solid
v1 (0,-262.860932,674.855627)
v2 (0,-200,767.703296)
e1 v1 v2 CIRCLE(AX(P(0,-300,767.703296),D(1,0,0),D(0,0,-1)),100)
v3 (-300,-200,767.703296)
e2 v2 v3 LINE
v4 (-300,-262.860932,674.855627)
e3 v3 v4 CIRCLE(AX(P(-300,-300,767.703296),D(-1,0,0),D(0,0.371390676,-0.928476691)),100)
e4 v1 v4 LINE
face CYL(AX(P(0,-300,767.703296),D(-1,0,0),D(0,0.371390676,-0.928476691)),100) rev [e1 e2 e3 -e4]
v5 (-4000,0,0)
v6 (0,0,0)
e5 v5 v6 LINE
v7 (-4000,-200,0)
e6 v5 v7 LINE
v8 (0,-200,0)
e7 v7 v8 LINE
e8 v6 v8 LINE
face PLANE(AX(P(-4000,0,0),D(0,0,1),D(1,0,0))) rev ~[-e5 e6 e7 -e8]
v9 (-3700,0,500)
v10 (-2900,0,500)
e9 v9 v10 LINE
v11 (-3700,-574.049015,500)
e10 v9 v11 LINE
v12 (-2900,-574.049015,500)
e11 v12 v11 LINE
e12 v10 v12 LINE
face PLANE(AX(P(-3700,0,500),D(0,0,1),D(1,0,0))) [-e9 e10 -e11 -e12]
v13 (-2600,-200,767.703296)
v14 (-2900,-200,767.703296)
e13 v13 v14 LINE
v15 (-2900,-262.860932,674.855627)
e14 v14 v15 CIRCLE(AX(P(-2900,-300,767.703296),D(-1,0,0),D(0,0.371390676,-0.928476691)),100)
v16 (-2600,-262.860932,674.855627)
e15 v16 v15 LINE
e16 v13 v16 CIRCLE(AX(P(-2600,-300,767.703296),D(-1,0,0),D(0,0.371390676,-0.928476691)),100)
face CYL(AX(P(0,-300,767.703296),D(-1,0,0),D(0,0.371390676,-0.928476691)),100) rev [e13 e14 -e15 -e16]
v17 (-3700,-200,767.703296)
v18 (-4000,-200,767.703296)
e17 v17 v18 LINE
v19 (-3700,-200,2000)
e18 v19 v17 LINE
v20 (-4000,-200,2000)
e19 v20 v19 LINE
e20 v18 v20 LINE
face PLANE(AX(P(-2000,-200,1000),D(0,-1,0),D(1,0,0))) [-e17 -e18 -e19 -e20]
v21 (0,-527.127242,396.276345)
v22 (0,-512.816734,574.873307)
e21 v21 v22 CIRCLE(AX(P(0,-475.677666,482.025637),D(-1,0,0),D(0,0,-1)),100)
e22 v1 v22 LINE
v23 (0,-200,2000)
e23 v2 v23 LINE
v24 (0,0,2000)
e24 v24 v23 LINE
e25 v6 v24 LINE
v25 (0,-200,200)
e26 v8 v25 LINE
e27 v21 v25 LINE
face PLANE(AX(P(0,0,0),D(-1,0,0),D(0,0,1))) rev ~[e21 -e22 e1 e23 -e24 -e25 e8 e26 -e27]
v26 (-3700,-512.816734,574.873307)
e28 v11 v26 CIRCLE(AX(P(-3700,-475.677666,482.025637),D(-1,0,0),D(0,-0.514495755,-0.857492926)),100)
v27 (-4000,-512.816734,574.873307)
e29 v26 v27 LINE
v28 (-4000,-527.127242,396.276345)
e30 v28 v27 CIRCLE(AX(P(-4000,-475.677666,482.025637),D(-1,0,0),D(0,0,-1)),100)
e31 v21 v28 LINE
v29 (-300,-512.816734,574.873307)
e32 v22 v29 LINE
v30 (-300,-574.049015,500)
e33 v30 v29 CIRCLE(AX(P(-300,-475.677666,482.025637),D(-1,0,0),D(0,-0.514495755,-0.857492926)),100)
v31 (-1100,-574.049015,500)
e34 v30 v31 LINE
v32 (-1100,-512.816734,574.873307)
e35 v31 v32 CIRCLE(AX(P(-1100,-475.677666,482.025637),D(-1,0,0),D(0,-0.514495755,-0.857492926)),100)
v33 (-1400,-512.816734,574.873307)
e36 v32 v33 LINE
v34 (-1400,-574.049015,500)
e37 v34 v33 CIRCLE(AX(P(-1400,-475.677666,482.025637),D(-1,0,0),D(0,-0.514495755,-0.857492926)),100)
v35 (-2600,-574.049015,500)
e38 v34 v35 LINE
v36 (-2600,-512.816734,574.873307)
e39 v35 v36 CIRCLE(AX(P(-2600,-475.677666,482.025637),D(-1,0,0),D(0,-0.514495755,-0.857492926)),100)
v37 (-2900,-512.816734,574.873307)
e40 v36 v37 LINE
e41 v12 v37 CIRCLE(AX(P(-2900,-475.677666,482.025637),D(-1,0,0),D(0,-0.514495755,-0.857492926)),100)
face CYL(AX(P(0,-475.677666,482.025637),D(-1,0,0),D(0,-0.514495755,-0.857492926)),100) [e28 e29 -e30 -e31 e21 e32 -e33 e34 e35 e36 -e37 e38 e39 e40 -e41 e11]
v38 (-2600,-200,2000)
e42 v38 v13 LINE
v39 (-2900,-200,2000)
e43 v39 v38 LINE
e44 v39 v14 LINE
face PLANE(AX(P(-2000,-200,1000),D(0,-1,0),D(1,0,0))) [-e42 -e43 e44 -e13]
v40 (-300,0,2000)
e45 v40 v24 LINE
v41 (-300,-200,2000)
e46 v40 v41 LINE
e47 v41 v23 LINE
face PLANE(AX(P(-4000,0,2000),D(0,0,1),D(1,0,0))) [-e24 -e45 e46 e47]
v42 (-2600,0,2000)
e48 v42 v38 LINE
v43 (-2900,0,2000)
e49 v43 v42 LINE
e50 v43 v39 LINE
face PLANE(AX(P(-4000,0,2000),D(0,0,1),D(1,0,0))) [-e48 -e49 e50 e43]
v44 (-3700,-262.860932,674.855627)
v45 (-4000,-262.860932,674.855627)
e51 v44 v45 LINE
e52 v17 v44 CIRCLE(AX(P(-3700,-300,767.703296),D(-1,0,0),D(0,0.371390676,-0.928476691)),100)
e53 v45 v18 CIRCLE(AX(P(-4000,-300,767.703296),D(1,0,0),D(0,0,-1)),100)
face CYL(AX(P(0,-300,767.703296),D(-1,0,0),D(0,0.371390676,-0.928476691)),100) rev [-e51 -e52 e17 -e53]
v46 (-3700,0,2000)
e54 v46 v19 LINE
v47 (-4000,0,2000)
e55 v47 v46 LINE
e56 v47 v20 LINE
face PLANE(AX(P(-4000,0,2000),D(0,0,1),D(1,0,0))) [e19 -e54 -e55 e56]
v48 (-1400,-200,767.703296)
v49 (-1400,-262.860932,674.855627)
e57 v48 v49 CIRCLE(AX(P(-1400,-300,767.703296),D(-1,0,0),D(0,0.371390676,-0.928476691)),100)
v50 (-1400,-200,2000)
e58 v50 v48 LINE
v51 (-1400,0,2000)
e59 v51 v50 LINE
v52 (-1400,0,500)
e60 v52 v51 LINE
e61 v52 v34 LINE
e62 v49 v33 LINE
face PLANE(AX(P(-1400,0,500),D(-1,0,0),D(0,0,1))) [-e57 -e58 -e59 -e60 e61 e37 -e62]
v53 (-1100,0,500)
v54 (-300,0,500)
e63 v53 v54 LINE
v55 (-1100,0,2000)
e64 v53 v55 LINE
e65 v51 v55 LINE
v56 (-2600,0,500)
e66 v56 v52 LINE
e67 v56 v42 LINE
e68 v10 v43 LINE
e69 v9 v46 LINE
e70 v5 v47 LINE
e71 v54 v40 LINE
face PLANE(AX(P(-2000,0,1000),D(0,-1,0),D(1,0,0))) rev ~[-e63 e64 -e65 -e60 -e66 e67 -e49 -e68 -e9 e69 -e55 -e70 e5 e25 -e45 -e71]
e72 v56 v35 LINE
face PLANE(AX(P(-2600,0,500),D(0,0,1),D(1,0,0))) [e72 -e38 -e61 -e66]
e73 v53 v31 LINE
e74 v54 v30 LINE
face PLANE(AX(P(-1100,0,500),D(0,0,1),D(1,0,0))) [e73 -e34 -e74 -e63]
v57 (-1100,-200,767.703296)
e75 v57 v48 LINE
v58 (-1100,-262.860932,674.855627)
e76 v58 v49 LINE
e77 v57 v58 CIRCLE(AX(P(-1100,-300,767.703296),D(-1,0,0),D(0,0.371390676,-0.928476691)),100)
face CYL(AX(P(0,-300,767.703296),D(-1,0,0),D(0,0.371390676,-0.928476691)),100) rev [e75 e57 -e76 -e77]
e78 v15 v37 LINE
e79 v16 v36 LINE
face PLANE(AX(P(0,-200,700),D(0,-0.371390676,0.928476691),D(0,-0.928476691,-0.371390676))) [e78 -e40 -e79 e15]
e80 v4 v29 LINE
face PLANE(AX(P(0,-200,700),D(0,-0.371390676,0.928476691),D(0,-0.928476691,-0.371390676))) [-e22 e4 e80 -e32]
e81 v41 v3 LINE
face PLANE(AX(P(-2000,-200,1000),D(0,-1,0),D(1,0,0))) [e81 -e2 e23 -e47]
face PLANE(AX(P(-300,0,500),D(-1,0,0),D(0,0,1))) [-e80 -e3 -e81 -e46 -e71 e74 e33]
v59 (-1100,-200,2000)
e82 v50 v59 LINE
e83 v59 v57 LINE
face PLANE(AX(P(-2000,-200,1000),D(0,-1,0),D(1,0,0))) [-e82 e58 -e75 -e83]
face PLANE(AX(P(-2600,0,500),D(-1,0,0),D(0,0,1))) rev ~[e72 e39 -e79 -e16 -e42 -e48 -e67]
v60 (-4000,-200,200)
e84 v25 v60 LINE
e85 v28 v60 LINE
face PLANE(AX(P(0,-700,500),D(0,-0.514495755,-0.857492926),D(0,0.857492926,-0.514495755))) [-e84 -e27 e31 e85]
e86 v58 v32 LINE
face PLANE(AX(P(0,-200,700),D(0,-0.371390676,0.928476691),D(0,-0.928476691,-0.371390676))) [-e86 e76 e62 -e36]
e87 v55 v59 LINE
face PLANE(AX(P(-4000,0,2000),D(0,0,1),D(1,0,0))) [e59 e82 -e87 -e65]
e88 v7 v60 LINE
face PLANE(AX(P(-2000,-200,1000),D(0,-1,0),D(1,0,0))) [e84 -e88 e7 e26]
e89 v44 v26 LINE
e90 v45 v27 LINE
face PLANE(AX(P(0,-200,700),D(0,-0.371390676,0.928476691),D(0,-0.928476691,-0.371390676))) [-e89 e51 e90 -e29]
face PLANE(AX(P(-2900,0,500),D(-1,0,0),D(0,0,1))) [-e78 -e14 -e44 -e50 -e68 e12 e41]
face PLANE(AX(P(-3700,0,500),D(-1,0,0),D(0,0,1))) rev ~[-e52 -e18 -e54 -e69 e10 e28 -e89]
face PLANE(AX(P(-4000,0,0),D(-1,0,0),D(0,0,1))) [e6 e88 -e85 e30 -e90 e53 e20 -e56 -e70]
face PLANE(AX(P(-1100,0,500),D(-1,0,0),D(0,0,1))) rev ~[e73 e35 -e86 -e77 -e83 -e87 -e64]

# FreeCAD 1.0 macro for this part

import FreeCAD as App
import Part
import Sketcher

V = App.Vector
Q = App.Units.Quantity


def edges_at(feature, points):
    """Names of the edges that pass closest to the given points."""
    edges = feature.Shape.Edges
    near = lambda p: min(range(len(edges)), key=lambda i: edges[i].distToShape(Part.Vertex(*p))[0])
    return sorted({f"Edge{near(p) + 1}" for p in points})

doc = App.newDocument("Part")
body = doc.addObject("PartDesign::Body", "Body")

# Sketch on XZ plane
sketch1 = body.newObject("Sketcher::SketchObject", "Sketch")
sketch1.AttachmentSupport = (doc.getObject("XZ_Plane"), [""])
sketch1.MapMode = "FlatFace"
sketch1.addGeometry([
    Part.LineSegment(V(-4000, 2000, 0), V(-4000, 0, 0)),
    Part.LineSegment(V(-4000, 0, 0), V(0, 0, 0)),
    Part.LineSegment(V(0, 0, 0), V(0, 2000, 0)),
    Part.LineSegment(V(0, 2000, 0), V(-4000, 2000, 0)),
], False)
sketch1.addConstraint([
    Sketcher.Constraint("Coincident", 0, 2, 1, 1),
    Sketcher.Constraint("Coincident", 1, 2, 2, 1),
    Sketcher.Constraint("Coincident", 2, 2, 3, 1),
    Sketcher.Constraint("Coincident", 3, 2, 0, 1),
    Sketcher.Constraint("Vertical", 0),
    Sketcher.Constraint("Horizontal", 1),
    Sketcher.Constraint("Vertical", 2),
    Sketcher.Constraint("Horizontal", 3),
    Sketcher.Constraint("Coincident", 1, 2, -1, 1),
    Sketcher.Constraint("DistanceX", 1, 1, 1, 2, Q("4000 mm")),
    Sketcher.Constraint("DistanceY", 0, 2, 0, 1, Q("2000 mm")),
])
pad1 = body.newObject("PartDesign::Pad", "Pad")
pad1.Profile = sketch1
pad1.Length = 200

# Sketch on YZ plane
sketch2 = body.newObject("Sketcher::SketchObject", "Sketch001")
sketch2.AttachmentSupport = (doc.getObject("YZ_Plane"), [""])
sketch2.MapMode = "FlatFace"
sketch2.addGeometry([
    Part.LineSegment(V(-700, 500, 0), V(-200, 200, 0)),
    Part.LineSegment(V(-200, 200, 0), V(-200, 700, 0)),
    Part.LineSegment(V(-200, 700, 0), V(-700, 500, 0)),
], False)
sketch2.addConstraint([
    Sketcher.Constraint("Coincident", 0, 2, 1, 1),
    Sketcher.Constraint("Coincident", 1, 2, 2, 1),
    Sketcher.Constraint("Coincident", 2, 2, 0, 1),
    Sketcher.Constraint("Vertical", 1),
    Sketcher.Constraint("DistanceY", 1, 1, 1, 2, Q("500 mm")),
    Sketcher.Constraint("DistanceX", 0, 2, -1, 1, Q("200 mm")),
    Sketcher.Constraint("DistanceY", -1, 1, 0, 2, Q("200 mm")),
    Sketcher.Constraint("DistanceX", 2, 2, -1, 1, Q("700 mm")),
    Sketcher.Constraint("DistanceY", -1, 1, 2, 2, Q("500 mm")),
])
pad2 = body.newObject("PartDesign::Pad", "Pad001")
pad2.Profile = sketch2
pad2.Length = 4000
pad2.Reversed = True
doc.recompute()

fillet = body.newObject("PartDesign::Fillet", "Fillet")
fillet.Base = (pad2, edges_at(pad2, [(-2000, -700, 500)]))
fillet.Radius = 100
doc.recompute()

fillet2 = body.newObject("PartDesign::Fillet", "Fillet001")
fillet2.Base = (fillet, edges_at(fillet, [(-2000, -200, 700)]))
fillet2.Radius = 100

# Sketch on XZ plane
sketch3 = body.newObject("Sketcher::SketchObject", "Sketch002")
sketch3.AttachmentSupport = (doc.getObject("XZ_Plane"), [""])
sketch3.MapMode = "FlatFace"
sketch3.addGeometry([
    Part.LineSegment(V(-1100, 2000, 0), V(-1100, 500, 0)),  # 0
    Part.LineSegment(V(-1100, 500, 0), V(-300, 500, 0)),  # 1
    Part.LineSegment(V(-300, 500, 0), V(-300, 2000, 0)),  # 2
    Part.LineSegment(V(-300, 2000, 0), V(-1100, 2000, 0)),  # 3
    Part.LineSegment(V(-2600, 2000, 0), V(-2600, 500, 0)),  # 4
    Part.LineSegment(V(-2600, 500, 0), V(-1400, 500, 0)),  # 5
    Part.LineSegment(V(-1400, 500, 0), V(-1400, 2000, 0)),  # 6
    Part.LineSegment(V(-1400, 2000, 0), V(-2600, 2000, 0)),  # 7
    Part.LineSegment(V(-3700, 2000, 0), V(-3700, 500, 0)),  # 8
    Part.LineSegment(V(-3700, 500, 0), V(-2900, 500, 0)),  # 9
    Part.LineSegment(V(-2900, 500, 0), V(-2900, 2000, 0)),  # 10
    Part.LineSegment(V(-2900, 2000, 0), V(-3700, 2000, 0)),  # 11
], False)
sketch3.addConstraint([
    Sketcher.Constraint("Coincident", 0, 2, 1, 1),
    Sketcher.Constraint("Coincident", 1, 2, 2, 1),
    Sketcher.Constraint("Coincident", 2, 2, 3, 1),
    Sketcher.Constraint("Coincident", 3, 2, 0, 1),
    Sketcher.Constraint("Coincident", 4, 2, 5, 1),
    Sketcher.Constraint("Coincident", 5, 2, 6, 1),
    Sketcher.Constraint("Coincident", 6, 2, 7, 1),
    Sketcher.Constraint("Coincident", 7, 2, 4, 1),
    Sketcher.Constraint("Coincident", 8, 2, 9, 1),
    Sketcher.Constraint("Coincident", 9, 2, 10, 1),
    Sketcher.Constraint("Coincident", 10, 2, 11, 1),
    Sketcher.Constraint("Coincident", 11, 2, 8, 1),
    Sketcher.Constraint("Vertical", 0),
    Sketcher.Constraint("Horizontal", 1),
    Sketcher.Constraint("Vertical", 2),
    Sketcher.Constraint("Horizontal", 3),
    Sketcher.Constraint("Vertical", 4),
    Sketcher.Constraint("Horizontal", 5),
    Sketcher.Constraint("Vertical", 6),
    Sketcher.Constraint("Horizontal", 7),
    Sketcher.Constraint("Vertical", 8),
    Sketcher.Constraint("Horizontal", 9),
    Sketcher.Constraint("Vertical", 10),
    Sketcher.Constraint("Horizontal", 11),
    Sketcher.Constraint("Horizontal", 1, 2, 4, 2),
    Sketcher.Constraint("Horizontal", 3, 2, 6, 2),
    Sketcher.Constraint("Horizontal", 5, 2, 8, 2),
    Sketcher.Constraint("Horizontal", 7, 2, 10, 2),
    Sketcher.Constraint("Equal", 3, 9),
    Sketcher.Constraint("DistanceX", 1, 1, 1, 2, Q("800 mm")),
    Sketcher.Constraint("DistanceX", 5, 1, 5, 2, Q("1200 mm")),
    Sketcher.Constraint("DistanceY", 0, 2, 0, 1, Q("1500 mm")),
    Sketcher.Constraint("DistanceX", 0, 2, -1, 1, Q("1100 mm")),
    Sketcher.Constraint("DistanceY", -1, 1, 0, 2, Q("500 mm")),
    Sketcher.Constraint("DistanceX", 4, 2, -1, 1, Q("2600 mm")),
    Sketcher.Constraint("DistanceX", 8, 2, -1, 1, Q("3700 mm")),
])
pocket1 = body.newObject("PartDesign::Pocket", "Pocket")
pocket1.Profile = sketch3
pocket1.Type = "ThroughAll"
pocket1.Reversed = True

doc.recompute()
